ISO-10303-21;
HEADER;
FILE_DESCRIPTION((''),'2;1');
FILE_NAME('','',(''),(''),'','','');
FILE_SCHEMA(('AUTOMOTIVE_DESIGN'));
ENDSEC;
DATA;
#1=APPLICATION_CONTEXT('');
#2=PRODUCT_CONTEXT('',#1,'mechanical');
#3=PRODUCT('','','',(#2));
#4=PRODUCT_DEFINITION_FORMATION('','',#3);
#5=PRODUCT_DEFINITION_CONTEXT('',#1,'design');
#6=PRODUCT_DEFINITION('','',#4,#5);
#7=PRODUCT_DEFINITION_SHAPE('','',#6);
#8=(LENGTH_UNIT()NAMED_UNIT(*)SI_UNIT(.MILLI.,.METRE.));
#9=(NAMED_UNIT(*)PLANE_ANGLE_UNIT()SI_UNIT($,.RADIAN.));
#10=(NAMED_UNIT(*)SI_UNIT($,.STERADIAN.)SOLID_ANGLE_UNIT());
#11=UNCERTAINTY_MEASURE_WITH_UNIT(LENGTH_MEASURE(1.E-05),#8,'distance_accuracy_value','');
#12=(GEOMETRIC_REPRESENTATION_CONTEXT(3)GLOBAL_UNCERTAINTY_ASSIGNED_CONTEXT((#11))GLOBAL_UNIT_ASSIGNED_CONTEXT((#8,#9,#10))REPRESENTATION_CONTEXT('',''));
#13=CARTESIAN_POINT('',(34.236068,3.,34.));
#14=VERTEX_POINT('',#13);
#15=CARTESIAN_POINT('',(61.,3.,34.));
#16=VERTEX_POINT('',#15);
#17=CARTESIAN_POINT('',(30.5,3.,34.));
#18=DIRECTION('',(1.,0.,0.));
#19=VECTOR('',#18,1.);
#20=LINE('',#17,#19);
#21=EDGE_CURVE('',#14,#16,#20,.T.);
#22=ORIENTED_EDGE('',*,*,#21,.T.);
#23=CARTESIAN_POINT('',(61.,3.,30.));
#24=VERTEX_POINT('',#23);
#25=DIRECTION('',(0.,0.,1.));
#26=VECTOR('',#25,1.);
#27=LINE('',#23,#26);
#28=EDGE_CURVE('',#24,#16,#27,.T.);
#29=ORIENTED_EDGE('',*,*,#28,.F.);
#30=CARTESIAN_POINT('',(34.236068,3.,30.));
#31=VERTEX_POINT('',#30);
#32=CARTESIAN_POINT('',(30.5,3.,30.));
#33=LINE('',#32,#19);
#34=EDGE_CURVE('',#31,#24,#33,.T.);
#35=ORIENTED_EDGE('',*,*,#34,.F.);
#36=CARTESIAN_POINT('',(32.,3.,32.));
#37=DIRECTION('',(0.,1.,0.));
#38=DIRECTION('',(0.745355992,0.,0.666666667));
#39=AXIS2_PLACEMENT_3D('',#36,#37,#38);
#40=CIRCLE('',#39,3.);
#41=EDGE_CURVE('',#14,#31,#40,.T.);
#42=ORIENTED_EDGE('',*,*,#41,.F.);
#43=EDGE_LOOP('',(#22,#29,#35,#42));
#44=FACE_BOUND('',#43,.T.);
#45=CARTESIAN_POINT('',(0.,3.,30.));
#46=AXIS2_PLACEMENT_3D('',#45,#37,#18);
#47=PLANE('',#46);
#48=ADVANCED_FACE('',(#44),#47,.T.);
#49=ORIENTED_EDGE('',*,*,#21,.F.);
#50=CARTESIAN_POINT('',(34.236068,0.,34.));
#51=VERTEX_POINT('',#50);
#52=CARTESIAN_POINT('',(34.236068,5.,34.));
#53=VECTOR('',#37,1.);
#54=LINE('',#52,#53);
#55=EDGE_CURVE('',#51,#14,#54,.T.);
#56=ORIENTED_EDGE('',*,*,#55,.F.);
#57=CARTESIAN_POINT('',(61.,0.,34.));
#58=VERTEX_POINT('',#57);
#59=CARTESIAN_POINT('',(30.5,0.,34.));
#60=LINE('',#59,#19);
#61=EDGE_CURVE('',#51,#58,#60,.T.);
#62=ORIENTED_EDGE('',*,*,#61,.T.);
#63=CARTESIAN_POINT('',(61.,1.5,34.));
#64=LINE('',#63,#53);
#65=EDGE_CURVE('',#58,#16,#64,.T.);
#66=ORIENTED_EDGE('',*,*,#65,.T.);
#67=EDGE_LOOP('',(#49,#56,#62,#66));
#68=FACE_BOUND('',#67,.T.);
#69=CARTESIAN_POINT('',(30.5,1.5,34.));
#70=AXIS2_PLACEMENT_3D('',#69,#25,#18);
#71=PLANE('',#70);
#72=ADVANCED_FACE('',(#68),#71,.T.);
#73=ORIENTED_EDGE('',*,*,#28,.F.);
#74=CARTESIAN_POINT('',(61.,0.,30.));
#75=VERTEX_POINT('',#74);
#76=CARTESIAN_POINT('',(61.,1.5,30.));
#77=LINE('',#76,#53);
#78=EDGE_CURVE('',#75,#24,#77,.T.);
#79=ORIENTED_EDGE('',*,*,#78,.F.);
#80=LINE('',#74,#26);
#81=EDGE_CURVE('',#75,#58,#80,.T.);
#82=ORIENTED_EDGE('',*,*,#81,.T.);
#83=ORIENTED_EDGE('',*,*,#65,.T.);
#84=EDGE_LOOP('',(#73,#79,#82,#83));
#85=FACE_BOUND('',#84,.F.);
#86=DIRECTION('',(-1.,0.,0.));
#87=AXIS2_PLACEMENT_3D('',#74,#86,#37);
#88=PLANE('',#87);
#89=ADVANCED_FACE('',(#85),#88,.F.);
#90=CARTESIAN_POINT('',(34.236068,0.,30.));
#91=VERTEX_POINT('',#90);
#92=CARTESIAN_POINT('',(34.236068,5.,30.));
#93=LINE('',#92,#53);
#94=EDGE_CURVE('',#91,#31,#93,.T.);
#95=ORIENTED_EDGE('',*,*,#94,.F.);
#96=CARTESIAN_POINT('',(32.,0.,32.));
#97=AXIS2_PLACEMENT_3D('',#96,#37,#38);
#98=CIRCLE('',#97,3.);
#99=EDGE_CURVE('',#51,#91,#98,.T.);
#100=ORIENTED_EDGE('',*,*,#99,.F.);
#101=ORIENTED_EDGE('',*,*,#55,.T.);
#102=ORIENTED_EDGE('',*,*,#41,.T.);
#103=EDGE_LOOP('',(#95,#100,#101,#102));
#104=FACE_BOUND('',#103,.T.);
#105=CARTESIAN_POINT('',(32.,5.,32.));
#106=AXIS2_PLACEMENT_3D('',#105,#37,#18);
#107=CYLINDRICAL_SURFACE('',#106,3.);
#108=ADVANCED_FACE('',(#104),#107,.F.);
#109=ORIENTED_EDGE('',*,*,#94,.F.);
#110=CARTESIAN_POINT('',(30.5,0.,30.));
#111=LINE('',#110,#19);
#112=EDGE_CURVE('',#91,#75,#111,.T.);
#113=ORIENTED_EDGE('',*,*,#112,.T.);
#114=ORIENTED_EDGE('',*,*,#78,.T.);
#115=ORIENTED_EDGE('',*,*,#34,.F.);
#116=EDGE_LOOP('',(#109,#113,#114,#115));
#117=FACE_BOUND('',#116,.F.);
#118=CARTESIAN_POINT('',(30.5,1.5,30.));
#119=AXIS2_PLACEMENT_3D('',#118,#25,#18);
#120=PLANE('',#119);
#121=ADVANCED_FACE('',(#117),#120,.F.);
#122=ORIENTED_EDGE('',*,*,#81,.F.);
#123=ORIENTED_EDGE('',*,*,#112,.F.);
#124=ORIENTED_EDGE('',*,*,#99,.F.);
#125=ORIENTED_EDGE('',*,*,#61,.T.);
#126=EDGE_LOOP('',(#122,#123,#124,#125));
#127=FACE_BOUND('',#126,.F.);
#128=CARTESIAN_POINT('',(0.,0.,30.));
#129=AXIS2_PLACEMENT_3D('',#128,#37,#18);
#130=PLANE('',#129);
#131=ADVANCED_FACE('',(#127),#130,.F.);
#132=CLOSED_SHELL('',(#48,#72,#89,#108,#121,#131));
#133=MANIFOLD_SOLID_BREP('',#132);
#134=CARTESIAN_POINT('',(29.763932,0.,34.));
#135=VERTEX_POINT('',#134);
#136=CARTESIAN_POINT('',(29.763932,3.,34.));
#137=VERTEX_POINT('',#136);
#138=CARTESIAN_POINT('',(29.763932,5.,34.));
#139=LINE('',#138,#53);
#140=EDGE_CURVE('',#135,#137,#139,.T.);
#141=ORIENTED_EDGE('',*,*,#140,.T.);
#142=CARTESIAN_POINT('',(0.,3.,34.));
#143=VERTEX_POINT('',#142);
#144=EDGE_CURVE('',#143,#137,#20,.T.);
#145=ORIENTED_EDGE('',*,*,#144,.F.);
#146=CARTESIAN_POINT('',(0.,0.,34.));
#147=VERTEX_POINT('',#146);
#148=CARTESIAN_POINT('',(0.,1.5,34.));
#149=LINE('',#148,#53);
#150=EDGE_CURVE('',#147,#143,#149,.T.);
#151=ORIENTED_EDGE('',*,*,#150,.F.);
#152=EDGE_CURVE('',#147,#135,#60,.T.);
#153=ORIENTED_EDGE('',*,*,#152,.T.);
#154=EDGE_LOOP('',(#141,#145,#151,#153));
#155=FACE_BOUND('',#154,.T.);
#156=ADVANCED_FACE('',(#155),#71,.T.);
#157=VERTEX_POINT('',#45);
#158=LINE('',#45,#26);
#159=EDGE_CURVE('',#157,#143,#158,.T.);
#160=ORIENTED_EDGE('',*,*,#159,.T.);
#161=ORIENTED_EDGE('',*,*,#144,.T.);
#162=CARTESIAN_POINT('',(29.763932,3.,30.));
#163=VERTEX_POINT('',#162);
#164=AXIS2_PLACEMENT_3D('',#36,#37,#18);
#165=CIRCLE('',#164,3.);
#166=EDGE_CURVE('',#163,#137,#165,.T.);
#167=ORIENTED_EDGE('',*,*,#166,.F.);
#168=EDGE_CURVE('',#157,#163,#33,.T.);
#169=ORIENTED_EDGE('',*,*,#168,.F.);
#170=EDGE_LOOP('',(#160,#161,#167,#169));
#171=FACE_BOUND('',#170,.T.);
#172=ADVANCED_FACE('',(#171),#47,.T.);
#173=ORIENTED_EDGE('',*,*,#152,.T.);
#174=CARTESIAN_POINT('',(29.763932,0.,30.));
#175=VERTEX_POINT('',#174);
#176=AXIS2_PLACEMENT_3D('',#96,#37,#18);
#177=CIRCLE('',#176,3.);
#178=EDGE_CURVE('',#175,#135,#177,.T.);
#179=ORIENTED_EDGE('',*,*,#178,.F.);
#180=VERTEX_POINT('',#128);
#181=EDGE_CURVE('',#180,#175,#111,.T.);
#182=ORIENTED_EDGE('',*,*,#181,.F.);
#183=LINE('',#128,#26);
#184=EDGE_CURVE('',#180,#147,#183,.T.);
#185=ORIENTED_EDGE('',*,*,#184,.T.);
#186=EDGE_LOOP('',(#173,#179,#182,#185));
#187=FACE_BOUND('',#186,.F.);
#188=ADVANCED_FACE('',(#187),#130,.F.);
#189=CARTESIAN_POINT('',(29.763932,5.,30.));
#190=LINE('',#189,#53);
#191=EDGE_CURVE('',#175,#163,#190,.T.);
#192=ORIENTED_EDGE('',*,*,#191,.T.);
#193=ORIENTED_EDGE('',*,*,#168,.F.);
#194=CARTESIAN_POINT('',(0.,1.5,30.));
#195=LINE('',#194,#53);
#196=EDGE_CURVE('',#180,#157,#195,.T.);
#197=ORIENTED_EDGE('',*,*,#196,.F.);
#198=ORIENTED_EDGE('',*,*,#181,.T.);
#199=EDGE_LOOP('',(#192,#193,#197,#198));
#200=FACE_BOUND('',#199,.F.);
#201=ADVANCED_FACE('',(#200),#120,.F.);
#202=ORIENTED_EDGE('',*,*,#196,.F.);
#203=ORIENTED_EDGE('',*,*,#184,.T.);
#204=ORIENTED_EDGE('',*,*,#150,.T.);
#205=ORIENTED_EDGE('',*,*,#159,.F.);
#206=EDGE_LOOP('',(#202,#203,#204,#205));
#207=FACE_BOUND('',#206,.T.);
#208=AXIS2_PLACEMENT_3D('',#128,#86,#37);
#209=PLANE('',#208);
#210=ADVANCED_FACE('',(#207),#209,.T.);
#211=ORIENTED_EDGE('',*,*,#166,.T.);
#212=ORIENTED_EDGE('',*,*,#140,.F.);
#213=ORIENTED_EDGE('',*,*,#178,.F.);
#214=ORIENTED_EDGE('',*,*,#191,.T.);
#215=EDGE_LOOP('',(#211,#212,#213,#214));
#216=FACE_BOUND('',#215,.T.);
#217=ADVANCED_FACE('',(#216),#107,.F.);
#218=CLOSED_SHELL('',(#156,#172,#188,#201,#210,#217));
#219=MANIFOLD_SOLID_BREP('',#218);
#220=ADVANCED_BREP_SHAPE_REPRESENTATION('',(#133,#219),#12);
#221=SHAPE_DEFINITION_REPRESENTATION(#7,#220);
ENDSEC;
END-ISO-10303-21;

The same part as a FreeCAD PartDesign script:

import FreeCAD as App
import Part
import Sketcher

V = App.Vector
Q = App.Units.Quantity

doc = App.newDocument("Part")
body = doc.addObject("PartDesign::Body", "Body")

# Sketch on XZ plane
sketch1 = body.newObject("Sketcher::SketchObject", "Sketch")
sketch1.AttachmentSupport = (doc.getObject("XZ_Plane"), [""])
sketch1.MapMode = "FlatFace"
sketch1.AttachmentOffset = App.Placement(V(0, 0, -5), App.Rotation())
sketch1.addGeometry(Part.Circle(V(32, 32, 0), V(0, 0, 1), 3), False)
sketch1.addConstraint([
    Sketcher.Constraint("Diameter", 0, Q("6 mm")),
    Sketcher.Constraint("DistanceX", -1, 1, 0, 3, Q("32 mm")),
    Sketcher.Constraint("DistanceY", -1, 1, 0, 3, Q("32 mm")),
])
pad1 = body.newObject("PartDesign::Pad", "Pad")
pad1.Profile = sketch1
pad1.Length = 10
body2 = doc.addObject("PartDesign::Body", "Body001")
body2.AllowCompound = True

# Sketch on XY plane
sketch2 = body2.newObject("Sketcher::SketchObject", "Sketch001")
sketch2.AttachmentSupport = (doc.getObject("XY_Plane001"), [""])
sketch2.MapMode = "FlatFace"
sketch2.AttachmentOffset = App.Placement(V(0, 0, 30), App.Rotation())
sketch2.addGeometry([
    Part.LineSegment(V(0, 3, 0), V(0, 0, 0)),
    Part.LineSegment(V(0, 0, 0), V(61, 0, 0)),
    Part.LineSegment(V(61, 0, 0), V(61, 3, 0)),
    Part.LineSegment(V(61, 3, 0), V(0, 3, 0)),
], False)
sketch2.addConstraint([
    Sketcher.Constraint("Coincident", 0, 2, 1, 1),
    Sketcher.Constraint("Coincident", 1, 2, 2, 1),
    Sketcher.Constraint("Coincident", 2, 2, 3, 1),
    Sketcher.Constraint("Coincident", 3, 2, 0, 1),
    Sketcher.Constraint("Vertical", 0),
    Sketcher.Constraint("Horizontal", 1),
    Sketcher.Constraint("Vertical", 2),
    Sketcher.Constraint("Horizontal", 3),
    Sketcher.Constraint("Coincident", 0, 2, -1, 1),
    Sketcher.Constraint("DistanceX", 1, 1, 1, 2, Q("61 mm")),
    Sketcher.Constraint("DistanceY", 0, 2, 0, 1, Q("3 mm")),
])
pad2 = body2.newObject("PartDesign::Pad", "Pad001")
pad2.Profile = sketch2
pad2.Length = 4
doc.recompute()

boolean = body2.newObject("PartDesign::Boolean", "Boolean")
boolean.Type = "Cut"
boolean.addObjects([body])

doc.recompute()
